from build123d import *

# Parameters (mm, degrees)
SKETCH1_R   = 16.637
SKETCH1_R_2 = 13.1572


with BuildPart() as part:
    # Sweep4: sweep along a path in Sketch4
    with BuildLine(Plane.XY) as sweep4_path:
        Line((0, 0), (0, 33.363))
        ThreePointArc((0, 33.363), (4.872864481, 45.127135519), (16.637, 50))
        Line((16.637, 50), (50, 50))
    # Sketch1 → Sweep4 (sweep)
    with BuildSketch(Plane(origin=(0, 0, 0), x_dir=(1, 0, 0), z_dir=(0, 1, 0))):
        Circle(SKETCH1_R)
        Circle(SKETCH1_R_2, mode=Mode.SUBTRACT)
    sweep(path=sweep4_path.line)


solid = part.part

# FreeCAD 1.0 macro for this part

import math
import FreeCAD as App
import Part
import Sketcher

V = App.Vector
Q = App.Units.Quantity

doc = App.newDocument("Part")
body = doc.addObject("PartDesign::Body", "Body")

sketch1 = doc.addObject("Sketcher::SketchObject", "Sketch")
body.addObject(sketch1)
sketch1.AttachmentSupport = (doc.XZ_Plane, [""])
sketch1.MapMode = "FlatFace"
sketch1.addGeometry([
    Part.Circle(V(0, 0, 0), V(0, 0, 1), 17),
    Part.Circle(V(0, 0, 0), V(0, 0, 1), 13),
], False)
sketch1.addConstraint([
    Sketcher.Constraint("Coincident", 0, 3, -1, 1),
    Sketcher.Constraint("Coincident", 1, 3, -1, 1),
    Sketcher.Constraint("Diameter", 0, Q("1.31 in")),
    Sketcher.Constraint("Diameter", 1, Q("1.036 in")),
])

sketch2 = doc.addObject("Sketcher::SketchObject", "Sketch001")
body.addObject(sketch2)
sketch2.AttachmentSupport = (doc.XY_Plane, [""])
sketch2.MapMode = "FlatFace"
sketch2.addGeometry([
    Part.LineSegment(V(0, 0, 0), V(0, 33, 0)),
    Part.ArcOfCircle(Part.Circle(V(17, 33, 0), V(0, 0, 1), 17), math.radians(90), math.radians(180)),
    Part.LineSegment(V(17, 50, 0), V(50, 50, 0)),
], False)
sketch2.addConstraint([
    Sketcher.Constraint("Tangent", 0, 2, 1, 2),
    Sketcher.Constraint("Tangent", 1, 1, 2, 1),
    Sketcher.Constraint("Vertical", 0),
    Sketcher.Constraint("Horizontal", 2),
    Sketcher.Constraint("Coincident", 0, 1, -1, 1),
    Sketcher.Constraint("Equal", 2, 0),
    Sketcher.Constraint("Radius", 1, Q("0.655 in")),
    Sketcher.Constraint("DistanceX", 2, 1, 2, 2, Q("33.363 mm")),
])
doc.recompute()

additivepipe = doc.addObject("PartDesign::AdditivePipe", "AdditivePipe")
body.addObject(additivepipe)
additivepipe.Profile = sketch1
additivepipe.Spine = (sketch2, ["Edge1", "Edge2", "Edge3"])

doc.recompute()
